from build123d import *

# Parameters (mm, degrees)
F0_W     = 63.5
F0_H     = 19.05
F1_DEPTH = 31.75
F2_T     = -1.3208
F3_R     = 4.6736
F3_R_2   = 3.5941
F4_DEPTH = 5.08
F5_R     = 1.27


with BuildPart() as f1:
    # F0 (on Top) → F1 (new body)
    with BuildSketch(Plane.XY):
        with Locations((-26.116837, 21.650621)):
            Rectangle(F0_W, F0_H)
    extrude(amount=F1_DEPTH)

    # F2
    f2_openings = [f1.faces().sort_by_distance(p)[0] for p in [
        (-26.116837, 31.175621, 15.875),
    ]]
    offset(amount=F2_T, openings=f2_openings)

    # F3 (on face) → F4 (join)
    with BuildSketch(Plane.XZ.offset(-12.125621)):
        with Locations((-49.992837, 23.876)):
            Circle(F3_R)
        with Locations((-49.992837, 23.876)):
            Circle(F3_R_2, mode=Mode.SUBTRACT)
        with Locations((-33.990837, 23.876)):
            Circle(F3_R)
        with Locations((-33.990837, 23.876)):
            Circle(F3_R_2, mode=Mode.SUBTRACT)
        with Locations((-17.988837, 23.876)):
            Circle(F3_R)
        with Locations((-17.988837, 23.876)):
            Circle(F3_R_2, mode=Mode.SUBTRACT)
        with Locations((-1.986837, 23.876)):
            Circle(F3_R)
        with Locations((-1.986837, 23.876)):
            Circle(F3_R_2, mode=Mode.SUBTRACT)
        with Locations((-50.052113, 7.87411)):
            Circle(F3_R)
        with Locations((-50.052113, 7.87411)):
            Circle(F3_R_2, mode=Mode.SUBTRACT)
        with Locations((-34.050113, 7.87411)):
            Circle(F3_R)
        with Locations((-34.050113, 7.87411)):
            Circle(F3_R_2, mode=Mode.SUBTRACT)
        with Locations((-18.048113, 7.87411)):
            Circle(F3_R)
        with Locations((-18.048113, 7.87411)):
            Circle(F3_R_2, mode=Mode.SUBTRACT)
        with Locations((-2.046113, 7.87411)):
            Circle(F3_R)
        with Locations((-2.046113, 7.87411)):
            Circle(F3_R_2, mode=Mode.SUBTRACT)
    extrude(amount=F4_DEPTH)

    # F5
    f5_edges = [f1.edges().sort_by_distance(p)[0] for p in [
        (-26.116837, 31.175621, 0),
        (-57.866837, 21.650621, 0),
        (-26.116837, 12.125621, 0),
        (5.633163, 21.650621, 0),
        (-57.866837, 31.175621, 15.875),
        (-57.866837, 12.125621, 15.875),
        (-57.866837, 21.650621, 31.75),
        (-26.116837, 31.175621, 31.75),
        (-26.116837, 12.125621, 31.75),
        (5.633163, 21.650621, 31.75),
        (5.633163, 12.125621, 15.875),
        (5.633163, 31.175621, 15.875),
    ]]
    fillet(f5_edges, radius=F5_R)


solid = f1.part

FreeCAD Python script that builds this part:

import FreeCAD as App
import Part
import Sketcher
from FreeCAD import Vector
Q = App.Units.Quantity


def edges_at(feature, points):
    """Names of the edges that pass closest to the given points."""
    edges = feature.Shape.Edges
    near = lambda p: min(range(len(edges)), key=lambda i: edges[i].distToShape(Part.Vertex(*p))[0])
    return sorted({f"Edge{near(p) + 1}" for p in points})


def faces_at(feature, points):
    """Names of the faces that lie closest to the given points."""
    faces = feature.Shape.Faces
    near = lambda p: min(range(len(faces)), key=lambda i: faces[i].distToShape(Part.Vertex(*p))[0])
    return sorted({f"Face{near(p) + 1}" for p in points})


def add_polygon(sketch, points):
    """Adds a closed chain of lines whose ends are joined by coincident constraints."""
    first, n = sketch.GeometryCount, len(points)
    for a, b in zip(points, points[1:] + points[:1]):
        sketch.addGeometry(Part.LineSegment(App.Vector(*a, 0), App.Vector(*b, 0)), False)
    for i in range(n):
        sketch.addConstraint(Sketcher.Constraint("Coincident", first + i, 2, first + (i + 1) % n, 1))

doc = App.newDocument("Part")
body = doc.addObject("PartDesign::Body", "Body")

# Sketch on XY plane
sketch1 = doc.addObject("Sketcher::SketchObject", "Sketch")
body.addObject(sketch1)
sketch1.AttachmentSupport = (doc.XY_Plane, [""])
sketch1.MapMode = "FlatFace"
add_polygon(sketch1, [(-58, 31), (-58, 12), (6, 12), (6, 31)])  # lines 0-3
sketch1.addConstraint([
    Sketcher.Constraint("Vertical", 0),
    Sketcher.Constraint("Horizontal", 1),
    Sketcher.Constraint("Vertical", 2),
    Sketcher.Constraint("Horizontal", 3),
    Sketcher.Constraint("DistanceX", 1, 1, 1, 2, Q("2.5 in")),
    Sketcher.Constraint("DistanceY", 0, 2, 0, 1, Q("0.75 in")),
    Sketcher.Constraint("DistanceY", -1, 1, 0, 2, 12.125621),
    Sketcher.Constraint("DistanceX", 0, 2, -1, 1, 57.866837),
])
pad1 = doc.addObject("PartDesign::Pad", "Pad")
body.addObject(pad1)
pad1.Profile = sketch1
pad1.Length = Q("1.25 in")
doc.recompute()

thickness = doc.addObject("PartDesign::Thickness", "Thickness")
body.addObject(thickness)
thickness.Base = (pad1, faces_at(pad1, [(-26.117, 31.176, 15.875)]))
thickness.Value = Q("0.052 in")
thickness.Reversed = True
thickness.Join = "Arc"

# Sketch on XZ plane
sketch2 = doc.addObject("Sketcher::SketchObject", "Sketch001")
body.addObject(sketch2)
sketch2.AttachmentSupport = (doc.XZ_Plane, [""])
sketch2.MapMode = "FlatFace"
sketch2.AttachmentOffset = App.Placement(Vector(0, 0, -12.125621), App.Rotation())
sketch2.addGeometry([
    Part.Circle(Vector(-50, 23.9, 0), Vector(0, 0, 1), 4.7),  # 0
    Part.Circle(Vector(-50, 23.9, 0), Vector(0, 0, 1), 3.6),  # 1
    Part.Circle(Vector(-34, 23.9, 0), Vector(0, 0, 1), 4.7),  # 2
    Part.Circle(Vector(-34, 23.9, 0), Vector(0, 0, 1), 3.6),  # 3
    Part.Circle(Vector(-18, 23.9, 0), Vector(0, 0, 1), 4.7),  # 4
    Part.Circle(Vector(-18, 23.9, 0), Vector(0, 0, 1), 3.6),  # 5
    Part.Circle(Vector(-2, 23.9, 0), Vector(0, 0, 1), 4.7),  # 6
    Part.Circle(Vector(-2, 23.9, 0), Vector(0, 0, 1), 3.6),  # 7
    Part.Circle(Vector(-50.1, 7.9, 0), Vector(0, 0, 1), 4.7),  # 8
    Part.Circle(Vector(-50.1, 7.9, 0), Vector(0, 0, 1), 3.6),  # 9
    Part.Circle(Vector(-34.1, 7.9, 0), Vector(0, 0, 1), 4.7),  # 10
    Part.Circle(Vector(-34.1, 7.9, 0), Vector(0, 0, 1), 3.6),  # 11
    Part.Circle(Vector(-18, 7.9, 0), Vector(0, 0, 1), 4.7),  # 12
    Part.Circle(Vector(-18, 7.9, 0), Vector(0, 0, 1), 3.6),  # 13
    Part.Circle(Vector(-2, 7.9, 0), Vector(0, 0, 1), 4.7),  # 14
    Part.Circle(Vector(-2, 7.9, 0), Vector(0, 0, 1), 3.6),  # 15
], False)
sketch2.addConstraint([
    Sketcher.Constraint("Coincident", 1, 3, 0, 3),
    Sketcher.Constraint("Coincident", 3, 3, 2, 3),
    Sketcher.Constraint("Coincident", 5, 3, 4, 3),
    Sketcher.Constraint("Coincident", 7, 3, 6, 3),
    Sketcher.Constraint("Coincident", 9, 3, 8, 3),
    Sketcher.Constraint("Coincident", 11, 3, 10, 3),
    Sketcher.Constraint("Coincident", 13, 3, 12, 3),
    Sketcher.Constraint("Coincident", 15, 3, 14, 3),
    Sketcher.Constraint("Equal", 0, 2),
    Sketcher.Constraint("Equal", 1, 3),
    Sketcher.Constraint("Equal", 2, 4),
    Sketcher.Constraint("Equal", 3, 5),
    Sketcher.Constraint("Equal", 4, 6),
    Sketcher.Constraint("Equal", 5, 7),
    Sketcher.Constraint("Equal", 6, 8),
    Sketcher.Constraint("Equal", 7, 9),
    Sketcher.Constraint("Equal", 8, 10),
    Sketcher.Constraint("Equal", 9, 11),
    Sketcher.Constraint("Equal", 10, 12),
    Sketcher.Constraint("Equal", 11, 13),
    Sketcher.Constraint("Equal", 12, 14),
    Sketcher.Constraint("Equal", 13, 15),
    Sketcher.Constraint("Horizontal", 1, 3, 2, 3),
    Sketcher.Constraint("Horizontal", 3, 3, 4, 3),
    Sketcher.Constraint("Horizontal", 5, 3, 6, 3),
    Sketcher.Constraint("Horizontal", 9, 3, 10, 3),
    Sketcher.Constraint("Horizontal", 11, 3, 12, 3),
    Sketcher.Constraint("Horizontal", 13, 3, 14, 3),
    Sketcher.Constraint("Diameter", 0, Q("0.368 in")),
    Sketcher.Constraint("Diameter", 1, Q("0.283 in")),
    Sketcher.Constraint("DistanceY", -1, 1, 0, 3, Q("0.94 in")),
    Sketcher.Constraint("DistanceX", 0, 3, 2, 3, Q("0.63 in")),
    Sketcher.Constraint("DistanceX", 2, 3, 4, 3, Q("0.63 in")),
    Sketcher.Constraint("DistanceX", 4, 3, 6, 3, Q("0.63 in")),
    Sketcher.Constraint("DistanceX", 8, 3, 10, 3, Q("0.63 in")),
    Sketcher.Constraint("DistanceX", 10, 3, 12, 3, Q("0.63 in")),
    Sketcher.Constraint("DistanceX", 12, 3, 14, 3, Q("0.63 in")),
    Sketcher.Constraint("DistanceY", -1, 1, 8, 3, 7.87411),
    Sketcher.Constraint("DistanceX", 0, 3, -1, 1, 49.992837),
    Sketcher.Constraint("DistanceX", 8, 3, -1, 1, 50.052113),
])
pad2 = doc.addObject("PartDesign::Pad", "Pad001")
body.addObject(pad2)
pad2.Profile = sketch2
pad2.Length = Q("0.2 in")
doc.recompute()

fillet = doc.addObject("PartDesign::Fillet", "Fillet")
body.addObject(fillet)
fillet.Base = (pad2, edges_at(pad2, [
    (-26.117, 31.176, 0),
    (-57.867, 21.651, 0),
    (-26.117, 12.126, 0),
    (5.633, 21.651, 0),
    (-57.867, 31.176, 15.875),
    (-57.867, 12.126, 15.875),
    (-57.867, 21.651, 31.75),
    (-26.117, 31.176, 31.75),
    (-26.117, 12.126, 31.75),
    (5.633, 21.651, 31.75),
    (5.633, 12.126, 15.875),
    (5.633, 31.176, 15.875),
]))
fillet.Radius = Q("0.05 in")

doc.recompute()
